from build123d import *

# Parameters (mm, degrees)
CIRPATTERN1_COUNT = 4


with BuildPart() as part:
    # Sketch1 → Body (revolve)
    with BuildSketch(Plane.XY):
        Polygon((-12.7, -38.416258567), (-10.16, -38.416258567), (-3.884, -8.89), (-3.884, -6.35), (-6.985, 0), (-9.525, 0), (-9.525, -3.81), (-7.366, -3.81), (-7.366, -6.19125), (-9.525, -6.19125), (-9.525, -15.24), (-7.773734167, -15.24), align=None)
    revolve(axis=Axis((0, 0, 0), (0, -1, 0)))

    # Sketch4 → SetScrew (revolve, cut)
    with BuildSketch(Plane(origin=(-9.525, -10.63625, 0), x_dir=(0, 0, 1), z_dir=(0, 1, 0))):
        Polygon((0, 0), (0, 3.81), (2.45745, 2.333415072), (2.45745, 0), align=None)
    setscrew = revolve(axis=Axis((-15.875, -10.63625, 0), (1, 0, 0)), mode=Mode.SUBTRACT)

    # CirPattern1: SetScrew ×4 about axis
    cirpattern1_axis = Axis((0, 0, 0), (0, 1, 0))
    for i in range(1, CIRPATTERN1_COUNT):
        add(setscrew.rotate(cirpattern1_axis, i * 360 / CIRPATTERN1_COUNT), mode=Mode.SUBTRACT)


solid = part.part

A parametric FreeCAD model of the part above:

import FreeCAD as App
import Part
import Sketcher
Q = App.Units.Quantity


def add_polygon(sketch, points):
    """Adds a closed chain of lines whose ends are joined by coincident constraints."""
    first, n = sketch.GeometryCount, len(points)
    for a, b in zip(points, points[1:] + points[:1]):
        sketch.addGeometry(Part.LineSegment(App.Vector(*a, 0), App.Vector(*b, 0)), False)
    for i in range(n):
        sketch.addConstraint(Sketcher.Constraint("Coincident", first + i, 2, first + (i + 1) % n, 1))

doc = App.newDocument("Part")
body = doc.addObject("PartDesign::Body", "Body")

sketch1 = body.newObject("Sketcher::SketchObject", "Sketch")
sketch1.AttachmentSupport = (doc.getObject("XY_Plane"), [""])
sketch1.MapMode = "FlatFace"
add_polygon(sketch1, [(-12.7, -38.416259), (-10.16, -38.416259), (-3.884, -8.89), (-3.884, -6.35), (-6.985, 0), (-9.525, 0), (-9.525, -3.81), (-7.366, -3.81), (-7.366, -6.19125), (-9.525, -6.19125), (-9.525, -15.24), (-7.773734, -15.24)])
sketch1.addConstraint([
    Sketcher.Constraint("Horizontal", 0),
    Sketcher.Constraint("Vertical", 2),
    Sketcher.Constraint("Horizontal", 4),
    Sketcher.Constraint("Vertical", 5),
    Sketcher.Constraint("Horizontal", 6),
    Sketcher.Constraint("Vertical", 7),
    Sketcher.Constraint("Horizontal", 8),
    Sketcher.Constraint("Vertical", 9),
    Sketcher.Constraint("Horizontal", 10),
    Sketcher.Constraint("PointOnObject", 3, 2, -1),
    Sketcher.Constraint("Parallel", 1, 11),
    Sketcher.Constraint("Vertical", 5, 2, 8, 2),
    Sketcher.Constraint("Equal", 0, 4),
    Sketcher.Constraint("Equal", 4, 2),
    Sketcher.Constraint("DistanceX", 0, 1, 0, 2, Q("0.1 in")),
    Sketcher.Constraint("Angle", 1, Q("78 deg")),
    Sketcher.Constraint("DistanceY", 5, 2, 5, 1, Q("0.15 in")),
    Sketcher.Constraint("DistanceX", 0, 2, -1, 1, Q("0.4 in")),
    Sketcher.Constraint("DistanceY", 9, 2, -1, 1, Q("0.6 in")),
    Sketcher.Constraint("DistanceY", 2, 2, 5, 2, Q("0.1 in")),
    Sketcher.Constraint("DistanceX", 6, 1, 6, 2, Q("0.085 in")),
    Sketcher.Constraint("DistanceY", 7, 2, 7, 1, Q("0.09375 in")),
    Sketcher.Constraint("DistanceX", 6, 2, -1, 1, Q("0.29 in")),
    Sketcher.Constraint("DistanceX", 1, 2, -1, 1, 3.884),
])
revolution = body.newObject("PartDesign::Revolution", "Revolution")
revolution.Profile = sketch1
revolution.ReferenceAxis = (sketch1, ["V_Axis"])
revolution.Angle = 360

sketch2 = body.newObject("Sketcher::SketchObject", "Sketch001")
sketch2.AttachmentSupport = (doc.getObject("XZ_Plane"), [""])
sketch2.MapMode = "FlatFace"
sketch2.AttachmentOffset = App.Placement(App.Vector(0, 0, 10.63625), App.Rotation())
add_polygon(sketch2, [(-5.715, 0), (-9.525, 0), (-9.525, 2.45745), (-7.191585, 2.45745)])
sketch2.addConstraint([
    Sketcher.Constraint("Horizontal", 0),
    Sketcher.Constraint("Vertical", 1),
    Sketcher.Constraint("Horizontal", 2),
    Sketcher.Constraint("PointOnObject", 0, 2, -1),
    Sketcher.Constraint("Angle", 3, Q("-59 deg")),
    Sketcher.Constraint("DistanceX", 0, 2, 0, 1, Q("0.15 in")),
    Sketcher.Constraint("DistanceX", 0, 2, -1, 1, Q("0.375 in")),
    Sketcher.Constraint("DistanceY", 1, 1, 1, 2, 2.45745),
])
groove = body.newObject("PartDesign::Groove", "Groove")
groove.Profile = sketch2
groove.ReferenceAxis = (sketch2, ["H_Axis"])
groove.Angle = 360
doc.recompute()

polarpattern = body.newObject("PartDesign::PolarPattern", "PolarPattern")
polarpattern.Originals = [groove]
polarpattern.Axis = (doc.getObject("Y_Axis"), [""])
polarpattern.Angle = 360
polarpattern.Occurrences = 4
body.Tip = polarpattern

doc.recompute()
